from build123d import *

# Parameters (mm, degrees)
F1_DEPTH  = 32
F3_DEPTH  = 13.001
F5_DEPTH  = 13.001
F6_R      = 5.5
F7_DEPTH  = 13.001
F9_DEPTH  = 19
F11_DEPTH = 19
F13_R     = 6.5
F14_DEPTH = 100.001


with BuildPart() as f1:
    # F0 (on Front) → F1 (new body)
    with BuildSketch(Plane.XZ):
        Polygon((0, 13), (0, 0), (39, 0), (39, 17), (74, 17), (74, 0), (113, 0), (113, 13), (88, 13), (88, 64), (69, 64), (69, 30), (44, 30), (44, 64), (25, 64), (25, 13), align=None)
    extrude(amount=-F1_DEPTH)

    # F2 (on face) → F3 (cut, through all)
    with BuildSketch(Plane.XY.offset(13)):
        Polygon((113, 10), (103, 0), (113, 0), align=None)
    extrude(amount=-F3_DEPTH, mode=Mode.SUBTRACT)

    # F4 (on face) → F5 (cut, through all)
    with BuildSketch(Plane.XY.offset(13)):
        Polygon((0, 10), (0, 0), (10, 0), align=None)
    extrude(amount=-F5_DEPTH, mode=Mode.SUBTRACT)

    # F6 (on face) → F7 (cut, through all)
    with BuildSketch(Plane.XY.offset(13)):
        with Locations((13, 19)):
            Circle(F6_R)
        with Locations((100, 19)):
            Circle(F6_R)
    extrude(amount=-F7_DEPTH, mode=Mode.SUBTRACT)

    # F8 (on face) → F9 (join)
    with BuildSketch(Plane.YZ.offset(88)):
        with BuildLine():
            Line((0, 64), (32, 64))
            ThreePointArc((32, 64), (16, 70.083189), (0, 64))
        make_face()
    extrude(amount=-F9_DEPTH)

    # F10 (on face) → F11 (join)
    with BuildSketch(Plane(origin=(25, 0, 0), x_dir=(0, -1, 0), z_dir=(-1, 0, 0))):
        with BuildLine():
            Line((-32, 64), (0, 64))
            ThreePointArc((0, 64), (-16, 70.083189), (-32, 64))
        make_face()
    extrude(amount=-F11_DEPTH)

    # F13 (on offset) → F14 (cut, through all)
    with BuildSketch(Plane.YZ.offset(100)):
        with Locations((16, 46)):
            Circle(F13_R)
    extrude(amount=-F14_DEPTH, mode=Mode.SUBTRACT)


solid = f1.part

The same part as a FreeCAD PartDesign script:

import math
import FreeCAD as App
import Part
import Sketcher

V = App.Vector
Q = App.Units.Quantity

doc = App.newDocument("Part")
body = doc.addObject("PartDesign::Body", "Body")

# Sketch on XZ plane
sketch1 = body.newObject("Sketcher::SketchObject", "Sketch")
sketch1.AttachmentSupport = (doc.getObject("XZ_Plane"), [""])
sketch1.MapMode = "FlatFace"
sketch1.addGeometry(Part.LineSegment(V(0, 13, 0), V(0, 0, 0)), False)
sketch1.addGeometry(Part.LineSegment(V(0, 0, 0), V(39, 0, 0)), False)
sketch1.addGeometry(Part.LineSegment(V(39, 0, 0), V(39, 17, 0)), False)
sketch1.addGeometry(Part.LineSegment(V(39, 17, 0), V(74, 17, 0)), False)
sketch1.addGeometry(Part.LineSegment(V(74, 17, 0), V(74, 0, 0)), False)
sketch1.addGeometry(Part.LineSegment(V(74, 0, 0), V(113, 0, 0)), False)
sketch1.addGeometry(Part.LineSegment(V(113, 0, 0), V(113, 13, 0)), False)
sketch1.addGeometry(Part.LineSegment(V(113, 13, 0), V(88, 13, 0)), False)
sketch1.addGeometry(Part.LineSegment(V(88, 13, 0), V(88, 64, 0)), False)
sketch1.addGeometry(Part.LineSegment(V(88, 64, 0), V(69, 64, 0)), False)
sketch1.addGeometry(Part.LineSegment(V(69, 64, 0), V(69, 30, 0)), False)
sketch1.addGeometry(Part.LineSegment(V(69, 30, 0), V(44, 30, 0)), False)
sketch1.addGeometry(Part.LineSegment(V(44, 30, 0), V(44, 64, 0)), False)
sketch1.addGeometry(Part.LineSegment(V(44, 64, 0), V(25, 64, 0)), False)
sketch1.addGeometry(Part.LineSegment(V(25, 64, 0), V(25, 13, 0)), False)
sketch1.addGeometry(Part.LineSegment(V(25, 13, 0), V(0, 13, 0)), False)
sketch1.addConstraint(Sketcher.Constraint("Coincident", 0, 2, 1, 1))
sketch1.addConstraint(Sketcher.Constraint("Coincident", 1, 2, 2, 1))
sketch1.addConstraint(Sketcher.Constraint("Coincident", 2, 2, 3, 1))
sketch1.addConstraint(Sketcher.Constraint("Coincident", 3, 2, 4, 1))
sketch1.addConstraint(Sketcher.Constraint("Coincident", 4, 2, 5, 1))
sketch1.addConstraint(Sketcher.Constraint("Coincident", 5, 2, 6, 1))
sketch1.addConstraint(Sketcher.Constraint("Coincident", 6, 2, 7, 1))
sketch1.addConstraint(Sketcher.Constraint("Coincident", 7, 2, 8, 1))
sketch1.addConstraint(Sketcher.Constraint("Coincident", 8, 2, 9, 1))
sketch1.addConstraint(Sketcher.Constraint("Coincident", 9, 2, 10, 1))
sketch1.addConstraint(Sketcher.Constraint("Coincident", 10, 2, 11, 1))
sketch1.addConstraint(Sketcher.Constraint("Coincident", 11, 2, 12, 1))
sketch1.addConstraint(Sketcher.Constraint("Coincident", 12, 2, 13, 1))
sketch1.addConstraint(Sketcher.Constraint("Coincident", 13, 2, 14, 1))
sketch1.addConstraint(Sketcher.Constraint("Coincident", 14, 2, 15, 1))
sketch1.addConstraint(Sketcher.Constraint("Coincident", 15, 2, 0, 1))
sketch1.addConstraint(Sketcher.Constraint("Vertical", 0))
sketch1.addConstraint(Sketcher.Constraint("Horizontal", 1))
sketch1.addConstraint(Sketcher.Constraint("Vertical", 2))
sketch1.addConstraint(Sketcher.Constraint("Horizontal", 3))
sketch1.addConstraint(Sketcher.Constraint("Vertical", 4))
sketch1.addConstraint(Sketcher.Constraint("Horizontal", 5))
sketch1.addConstraint(Sketcher.Constraint("Vertical", 6))
sketch1.addConstraint(Sketcher.Constraint("Horizontal", 7))
sketch1.addConstraint(Sketcher.Constraint("Vertical", 8))
sketch1.addConstraint(Sketcher.Constraint("Horizontal", 9))
sketch1.addConstraint(Sketcher.Constraint("Vertical", 10))
sketch1.addConstraint(Sketcher.Constraint("Horizontal", 11))
sketch1.addConstraint(Sketcher.Constraint("Vertical", 12))
sketch1.addConstraint(Sketcher.Constraint("Horizontal", 13))
sketch1.addConstraint(Sketcher.Constraint("Vertical", 14))
sketch1.addConstraint(Sketcher.Constraint("Horizontal", 15))
sketch1.addConstraint(Sketcher.Constraint("Coincident", 0, 2, -1, 1))
sketch1.addConstraint(Sketcher.Constraint("PointOnObject", 4, 2, -1))
sketch1.addConstraint(Sketcher.Constraint("Horizontal", 9, 2, 12, 2))
sketch1.addConstraint(Sketcher.Constraint("Horizontal", 7, 2, 14, 2))
sketch1.addConstraint(Sketcher.Constraint("Equal", 1, 5))
sketch1.addConstraint(Sketcher.Constraint("Equal", 7, 11))
sketch1.addConstraint(Sketcher.Constraint("Equal", 9, 13))
sketch1.addConstraint(Sketcher.Constraint("Equal", 11, 15))
sketch1.addConstraint(Sketcher.Constraint("DistanceX", 1, 1, 1, 2, Q("39 mm")))
sketch1.addConstraint(Sketcher.Constraint("DistanceX", 3, 1, 3, 2, Q("35 mm")))
sketch1.addConstraint(Sketcher.Constraint("DistanceX", 7, 2, 7, 1, Q("25 mm")))
sketch1.addConstraint(Sketcher.Constraint("DistanceY", 0, 2, 0, 1, Q("13 mm")))
sketch1.addConstraint(Sketcher.Constraint("DistanceY", 2, 1, 2, 2, Q("17 mm")))
sketch1.addConstraint(Sketcher.Constraint("DistanceY", 8, 1, 8, 2, Q("51 mm")))
sketch1.addConstraint(Sketcher.Constraint("DistanceY", 10, 2, 10, 1, Q("34 mm")))
pad1 = body.newObject("PartDesign::Pad", "Pad")
pad1.Profile = sketch1
pad1.Length = 32
pad1.Reversed = True

# Sketch on XY plane
sketch2 = body.newObject("Sketcher::SketchObject", "Sketch001")
sketch2.AttachmentSupport = (doc.getObject("XY_Plane"), [""])
sketch2.MapMode = "FlatFace"
sketch2.AttachmentOffset = App.Placement(V(0, 0, 13), App.Rotation())
sketch2.addGeometry(Part.LineSegment(V(113, 10, 0), V(103, 0, 0)), False)
sketch2.addGeometry(Part.LineSegment(V(103, 0, 0), V(113, 0, 0)), False)
sketch2.addGeometry(Part.LineSegment(V(113, 0, 0), V(113, 10, 0)), False)
sketch2.addConstraint(Sketcher.Constraint("Coincident", 0, 2, 1, 1))
sketch2.addConstraint(Sketcher.Constraint("Coincident", 1, 2, 2, 1))
sketch2.addConstraint(Sketcher.Constraint("Coincident", 2, 2, 0, 1))
sketch2.addConstraint(Sketcher.Constraint("Horizontal", 1))
sketch2.addConstraint(Sketcher.Constraint("Vertical", 2))
sketch2.addConstraint(Sketcher.Constraint("PointOnObject", 0, 2, -1))
sketch2.addConstraint(Sketcher.Constraint("Equal", 1, 2))
sketch2.addConstraint(Sketcher.Constraint("DistanceX", 1, 1, 1, 2, Q("10 mm")))
sketch2.addConstraint(Sketcher.Constraint("DistanceX", -1, 1, 0, 2, Q("103 mm")))
pocket1 = body.newObject("PartDesign::Pocket", "Pocket")
pocket1.Profile = sketch2
pocket1.Type = "ThroughAll"

# Sketch on XY plane
sketch3 = body.newObject("Sketcher::SketchObject", "Sketch002")
sketch3.AttachmentSupport = (doc.getObject("XY_Plane"), [""])
sketch3.MapMode = "FlatFace"
sketch3.AttachmentOffset = App.Placement(V(0, 0, 13), App.Rotation())
sketch3.addGeometry(Part.LineSegment(V(0, 10, 0), V(0, 0, 0)), False)
sketch3.addGeometry(Part.LineSegment(V(0, 0, 0), V(10, 0, 0)), False)
sketch3.addGeometry(Part.LineSegment(V(10, 0, 0), V(0, 10, 0)), False)
sketch3.addConstraint(Sketcher.Constraint("Coincident", 0, 2, 1, 1))
sketch3.addConstraint(Sketcher.Constraint("Coincident", 1, 2, 2, 1))
sketch3.addConstraint(Sketcher.Constraint("Coincident", 2, 2, 0, 1))
sketch3.addConstraint(Sketcher.Constraint("Vertical", 0))
sketch3.addConstraint(Sketcher.Constraint("Horizontal", 1))
sketch3.addConstraint(Sketcher.Constraint("Coincident", 0, 2, -1, 1))
sketch3.addConstraint(Sketcher.Constraint("Equal", 1, 0))
sketch3.addConstraint(Sketcher.Constraint("DistanceX", 1, 1, 1, 2, Q("10 mm")))
pocket2 = body.newObject("PartDesign::Pocket", "Pocket001")
pocket2.Profile = sketch3
pocket2.Type = "ThroughAll"

# Sketch on XY plane
sketch4 = body.newObject("Sketcher::SketchObject", "Sketch003")
sketch4.AttachmentSupport = (doc.getObject("XY_Plane"), [""])
sketch4.MapMode = "FlatFace"
sketch4.AttachmentOffset = App.Placement(V(0, 0, 13), App.Rotation())
sketch4.addGeometry(Part.Circle(V(13, 19, 0), V(0, 0, 1), 5.5), False)
sketch4.addGeometry(Part.Circle(V(100, 19, 0), V(0, 0, 1), 5.5), False)
sketch4.addConstraint(Sketcher.Constraint("Equal", 0, 1))
sketch4.addConstraint(Sketcher.Constraint("Horizontal", 0, 3, 1, 3))
sketch4.addConstraint(Sketcher.Constraint("Diameter", 0, Q("11 mm")))
sketch4.addConstraint(Sketcher.Constraint("DistanceX", -1, 1, 0, 3, Q("13 mm")))
sketch4.addConstraint(Sketcher.Constraint("DistanceY", -1, 1, 0, 3, Q("19 mm")))
sketch4.addConstraint(Sketcher.Constraint("DistanceX", -1, 1, 1, 3, Q("100 mm")))
pocket3 = body.newObject("PartDesign::Pocket", "Pocket002")
pocket3.Profile = sketch4
pocket3.Type = "ThroughAll"

# Sketch on YZ plane
sketch5 = body.newObject("Sketcher::SketchObject", "Sketch004")
sketch5.AttachmentSupport = (doc.getObject("YZ_Plane"), [""])
sketch5.MapMode = "FlatFace"
sketch5.AttachmentOffset = App.Placement(V(0, 0, 88), App.Rotation())
sketch5.addGeometry(Part.LineSegment(V(0, 64, 0), V(32, 64, 0)), False)
sketch5.addGeometry(Part.ArcOfCircle(Part.Circle(V(16, 45.999999, 0), V(0, 0, 1), 24.08319), math.radians(48.366462), math.radians(131.633538)), False)
sketch5.addConstraint(Sketcher.Constraint("Coincident", 0, 1, 1, 2))
sketch5.addConstraint(Sketcher.Constraint("Coincident", 1, 1, 0, 2))
sketch5.addConstraint(Sketcher.Constraint("Horizontal", 0))
sketch5.addConstraint(Sketcher.Constraint("PointOnObject", 0, 1, -2))
sketch5.addConstraint(Sketcher.Constraint("DistanceX", 0, 1, 0, 2, Q("32 mm")))
sketch5.addConstraint(Sketcher.Constraint("DistanceY", -1, 1, 1, 3, Q("45.999999 mm")))
sketch5.addConstraint(Sketcher.Constraint("DistanceY", -1, 1, 0, 1, Q("64 mm")))
pad2 = body.newObject("PartDesign::Pad", "Pad001")
pad2.Profile = sketch5
pad2.Length = 19
pad2.Reversed = True

# Sketch on YZ plane
sketch6 = body.newObject("Sketcher::SketchObject", "Sketch005")
sketch6.AttachmentSupport = (doc.getObject("YZ_Plane"), [""])
sketch6.MapMode = "FlatFace"
sketch6.AttachmentOffset = App.Placement(V(0, 0, 25), App.Rotation())
sketch6.addGeometry(Part.LineSegment(V(32, 64, 0), V(0, 64, 0)), False)
sketch6.addGeometry(Part.ArcOfCircle(Part.Circle(V(16, 45.999999, 0), V(0, 0, 1), 24.08319), math.radians(48.366462), math.radians(131.633538)), False)
sketch6.addConstraint(Sketcher.Constraint("Coincident", 0, 1, 1, 1))
sketch6.addConstraint(Sketcher.Constraint("Coincident", 1, 2, 0, 2))
sketch6.addConstraint(Sketcher.Constraint("Horizontal", 0))
sketch6.addConstraint(Sketcher.Constraint("PointOnObject", 1, 2, -2))
sketch6.addConstraint(Sketcher.Constraint("DistanceX", 0, 2, 0, 1, Q("32 mm")))
sketch6.addConstraint(Sketcher.Constraint("DistanceY", -1, 1, 1, 3, Q("45.999999 mm")))
sketch6.addConstraint(Sketcher.Constraint("DistanceY", -1, 1, 0, 1, Q("64 mm")))
pad3 = body.newObject("PartDesign::Pad", "Pad002")
pad3.Profile = sketch6
pad3.Length = 19

# Sketch on YZ plane
sketch7 = body.newObject("Sketcher::SketchObject", "Sketch006")
sketch7.AttachmentSupport = (doc.getObject("YZ_Plane"), [""])
sketch7.MapMode = "FlatFace"
sketch7.AttachmentOffset = App.Placement(V(0, 0, 100), App.Rotation())
sketch7.addGeometry(Part.Circle(V(16, 46, 0), V(0, 0, 1), 6.5), False)
sketch7.addConstraint(Sketcher.Constraint("Diameter", 0, Q("13 mm")))
sketch7.addConstraint(Sketcher.Constraint("DistanceX", -1, 1, 0, 3, Q("16 mm")))
sketch7.addConstraint(Sketcher.Constraint("DistanceY", -1, 1, 0, 3, Q("46 mm")))
pocket4 = body.newObject("PartDesign::Pocket", "Pocket003")
pocket4.Profile = sketch7
pocket4.Type = "ThroughAll"

doc.recompute()
